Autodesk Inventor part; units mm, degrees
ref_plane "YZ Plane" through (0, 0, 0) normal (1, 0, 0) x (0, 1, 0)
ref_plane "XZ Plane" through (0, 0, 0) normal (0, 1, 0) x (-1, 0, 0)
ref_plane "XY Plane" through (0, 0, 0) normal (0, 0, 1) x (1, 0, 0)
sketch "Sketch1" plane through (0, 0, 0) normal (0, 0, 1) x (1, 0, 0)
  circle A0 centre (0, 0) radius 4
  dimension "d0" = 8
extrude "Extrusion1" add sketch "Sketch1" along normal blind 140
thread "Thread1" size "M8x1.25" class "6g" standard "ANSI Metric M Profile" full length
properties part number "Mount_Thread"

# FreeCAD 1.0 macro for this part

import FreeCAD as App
import Part
import Sketcher

V = App.Vector

doc = App.newDocument("Part")
body = doc.addObject("PartDesign::Body", "Body")

# Sketch on XY plane
sketch1 = body.newObject("Sketcher::SketchObject", "Sketch")
sketch1.AttachmentSupport = (doc.getObject("XY_Plane"), [""])
sketch1.MapMode = "FlatFace"
sketch1.addGeometry(Part.Circle(V(0, 0, 0), V(0, 0, 1), 4), False)
sketch1.addConstraint(Sketcher.Constraint("Coincident", 0, 3, -1, 1))
sketch1.addConstraint(Sketcher.Constraint("Diameter", 0, 8.0))
pad1 = body.newObject("PartDesign::Pad", "Pad")
pad1.Profile = sketch1
pad1.Length = 140

doc.recompute()
